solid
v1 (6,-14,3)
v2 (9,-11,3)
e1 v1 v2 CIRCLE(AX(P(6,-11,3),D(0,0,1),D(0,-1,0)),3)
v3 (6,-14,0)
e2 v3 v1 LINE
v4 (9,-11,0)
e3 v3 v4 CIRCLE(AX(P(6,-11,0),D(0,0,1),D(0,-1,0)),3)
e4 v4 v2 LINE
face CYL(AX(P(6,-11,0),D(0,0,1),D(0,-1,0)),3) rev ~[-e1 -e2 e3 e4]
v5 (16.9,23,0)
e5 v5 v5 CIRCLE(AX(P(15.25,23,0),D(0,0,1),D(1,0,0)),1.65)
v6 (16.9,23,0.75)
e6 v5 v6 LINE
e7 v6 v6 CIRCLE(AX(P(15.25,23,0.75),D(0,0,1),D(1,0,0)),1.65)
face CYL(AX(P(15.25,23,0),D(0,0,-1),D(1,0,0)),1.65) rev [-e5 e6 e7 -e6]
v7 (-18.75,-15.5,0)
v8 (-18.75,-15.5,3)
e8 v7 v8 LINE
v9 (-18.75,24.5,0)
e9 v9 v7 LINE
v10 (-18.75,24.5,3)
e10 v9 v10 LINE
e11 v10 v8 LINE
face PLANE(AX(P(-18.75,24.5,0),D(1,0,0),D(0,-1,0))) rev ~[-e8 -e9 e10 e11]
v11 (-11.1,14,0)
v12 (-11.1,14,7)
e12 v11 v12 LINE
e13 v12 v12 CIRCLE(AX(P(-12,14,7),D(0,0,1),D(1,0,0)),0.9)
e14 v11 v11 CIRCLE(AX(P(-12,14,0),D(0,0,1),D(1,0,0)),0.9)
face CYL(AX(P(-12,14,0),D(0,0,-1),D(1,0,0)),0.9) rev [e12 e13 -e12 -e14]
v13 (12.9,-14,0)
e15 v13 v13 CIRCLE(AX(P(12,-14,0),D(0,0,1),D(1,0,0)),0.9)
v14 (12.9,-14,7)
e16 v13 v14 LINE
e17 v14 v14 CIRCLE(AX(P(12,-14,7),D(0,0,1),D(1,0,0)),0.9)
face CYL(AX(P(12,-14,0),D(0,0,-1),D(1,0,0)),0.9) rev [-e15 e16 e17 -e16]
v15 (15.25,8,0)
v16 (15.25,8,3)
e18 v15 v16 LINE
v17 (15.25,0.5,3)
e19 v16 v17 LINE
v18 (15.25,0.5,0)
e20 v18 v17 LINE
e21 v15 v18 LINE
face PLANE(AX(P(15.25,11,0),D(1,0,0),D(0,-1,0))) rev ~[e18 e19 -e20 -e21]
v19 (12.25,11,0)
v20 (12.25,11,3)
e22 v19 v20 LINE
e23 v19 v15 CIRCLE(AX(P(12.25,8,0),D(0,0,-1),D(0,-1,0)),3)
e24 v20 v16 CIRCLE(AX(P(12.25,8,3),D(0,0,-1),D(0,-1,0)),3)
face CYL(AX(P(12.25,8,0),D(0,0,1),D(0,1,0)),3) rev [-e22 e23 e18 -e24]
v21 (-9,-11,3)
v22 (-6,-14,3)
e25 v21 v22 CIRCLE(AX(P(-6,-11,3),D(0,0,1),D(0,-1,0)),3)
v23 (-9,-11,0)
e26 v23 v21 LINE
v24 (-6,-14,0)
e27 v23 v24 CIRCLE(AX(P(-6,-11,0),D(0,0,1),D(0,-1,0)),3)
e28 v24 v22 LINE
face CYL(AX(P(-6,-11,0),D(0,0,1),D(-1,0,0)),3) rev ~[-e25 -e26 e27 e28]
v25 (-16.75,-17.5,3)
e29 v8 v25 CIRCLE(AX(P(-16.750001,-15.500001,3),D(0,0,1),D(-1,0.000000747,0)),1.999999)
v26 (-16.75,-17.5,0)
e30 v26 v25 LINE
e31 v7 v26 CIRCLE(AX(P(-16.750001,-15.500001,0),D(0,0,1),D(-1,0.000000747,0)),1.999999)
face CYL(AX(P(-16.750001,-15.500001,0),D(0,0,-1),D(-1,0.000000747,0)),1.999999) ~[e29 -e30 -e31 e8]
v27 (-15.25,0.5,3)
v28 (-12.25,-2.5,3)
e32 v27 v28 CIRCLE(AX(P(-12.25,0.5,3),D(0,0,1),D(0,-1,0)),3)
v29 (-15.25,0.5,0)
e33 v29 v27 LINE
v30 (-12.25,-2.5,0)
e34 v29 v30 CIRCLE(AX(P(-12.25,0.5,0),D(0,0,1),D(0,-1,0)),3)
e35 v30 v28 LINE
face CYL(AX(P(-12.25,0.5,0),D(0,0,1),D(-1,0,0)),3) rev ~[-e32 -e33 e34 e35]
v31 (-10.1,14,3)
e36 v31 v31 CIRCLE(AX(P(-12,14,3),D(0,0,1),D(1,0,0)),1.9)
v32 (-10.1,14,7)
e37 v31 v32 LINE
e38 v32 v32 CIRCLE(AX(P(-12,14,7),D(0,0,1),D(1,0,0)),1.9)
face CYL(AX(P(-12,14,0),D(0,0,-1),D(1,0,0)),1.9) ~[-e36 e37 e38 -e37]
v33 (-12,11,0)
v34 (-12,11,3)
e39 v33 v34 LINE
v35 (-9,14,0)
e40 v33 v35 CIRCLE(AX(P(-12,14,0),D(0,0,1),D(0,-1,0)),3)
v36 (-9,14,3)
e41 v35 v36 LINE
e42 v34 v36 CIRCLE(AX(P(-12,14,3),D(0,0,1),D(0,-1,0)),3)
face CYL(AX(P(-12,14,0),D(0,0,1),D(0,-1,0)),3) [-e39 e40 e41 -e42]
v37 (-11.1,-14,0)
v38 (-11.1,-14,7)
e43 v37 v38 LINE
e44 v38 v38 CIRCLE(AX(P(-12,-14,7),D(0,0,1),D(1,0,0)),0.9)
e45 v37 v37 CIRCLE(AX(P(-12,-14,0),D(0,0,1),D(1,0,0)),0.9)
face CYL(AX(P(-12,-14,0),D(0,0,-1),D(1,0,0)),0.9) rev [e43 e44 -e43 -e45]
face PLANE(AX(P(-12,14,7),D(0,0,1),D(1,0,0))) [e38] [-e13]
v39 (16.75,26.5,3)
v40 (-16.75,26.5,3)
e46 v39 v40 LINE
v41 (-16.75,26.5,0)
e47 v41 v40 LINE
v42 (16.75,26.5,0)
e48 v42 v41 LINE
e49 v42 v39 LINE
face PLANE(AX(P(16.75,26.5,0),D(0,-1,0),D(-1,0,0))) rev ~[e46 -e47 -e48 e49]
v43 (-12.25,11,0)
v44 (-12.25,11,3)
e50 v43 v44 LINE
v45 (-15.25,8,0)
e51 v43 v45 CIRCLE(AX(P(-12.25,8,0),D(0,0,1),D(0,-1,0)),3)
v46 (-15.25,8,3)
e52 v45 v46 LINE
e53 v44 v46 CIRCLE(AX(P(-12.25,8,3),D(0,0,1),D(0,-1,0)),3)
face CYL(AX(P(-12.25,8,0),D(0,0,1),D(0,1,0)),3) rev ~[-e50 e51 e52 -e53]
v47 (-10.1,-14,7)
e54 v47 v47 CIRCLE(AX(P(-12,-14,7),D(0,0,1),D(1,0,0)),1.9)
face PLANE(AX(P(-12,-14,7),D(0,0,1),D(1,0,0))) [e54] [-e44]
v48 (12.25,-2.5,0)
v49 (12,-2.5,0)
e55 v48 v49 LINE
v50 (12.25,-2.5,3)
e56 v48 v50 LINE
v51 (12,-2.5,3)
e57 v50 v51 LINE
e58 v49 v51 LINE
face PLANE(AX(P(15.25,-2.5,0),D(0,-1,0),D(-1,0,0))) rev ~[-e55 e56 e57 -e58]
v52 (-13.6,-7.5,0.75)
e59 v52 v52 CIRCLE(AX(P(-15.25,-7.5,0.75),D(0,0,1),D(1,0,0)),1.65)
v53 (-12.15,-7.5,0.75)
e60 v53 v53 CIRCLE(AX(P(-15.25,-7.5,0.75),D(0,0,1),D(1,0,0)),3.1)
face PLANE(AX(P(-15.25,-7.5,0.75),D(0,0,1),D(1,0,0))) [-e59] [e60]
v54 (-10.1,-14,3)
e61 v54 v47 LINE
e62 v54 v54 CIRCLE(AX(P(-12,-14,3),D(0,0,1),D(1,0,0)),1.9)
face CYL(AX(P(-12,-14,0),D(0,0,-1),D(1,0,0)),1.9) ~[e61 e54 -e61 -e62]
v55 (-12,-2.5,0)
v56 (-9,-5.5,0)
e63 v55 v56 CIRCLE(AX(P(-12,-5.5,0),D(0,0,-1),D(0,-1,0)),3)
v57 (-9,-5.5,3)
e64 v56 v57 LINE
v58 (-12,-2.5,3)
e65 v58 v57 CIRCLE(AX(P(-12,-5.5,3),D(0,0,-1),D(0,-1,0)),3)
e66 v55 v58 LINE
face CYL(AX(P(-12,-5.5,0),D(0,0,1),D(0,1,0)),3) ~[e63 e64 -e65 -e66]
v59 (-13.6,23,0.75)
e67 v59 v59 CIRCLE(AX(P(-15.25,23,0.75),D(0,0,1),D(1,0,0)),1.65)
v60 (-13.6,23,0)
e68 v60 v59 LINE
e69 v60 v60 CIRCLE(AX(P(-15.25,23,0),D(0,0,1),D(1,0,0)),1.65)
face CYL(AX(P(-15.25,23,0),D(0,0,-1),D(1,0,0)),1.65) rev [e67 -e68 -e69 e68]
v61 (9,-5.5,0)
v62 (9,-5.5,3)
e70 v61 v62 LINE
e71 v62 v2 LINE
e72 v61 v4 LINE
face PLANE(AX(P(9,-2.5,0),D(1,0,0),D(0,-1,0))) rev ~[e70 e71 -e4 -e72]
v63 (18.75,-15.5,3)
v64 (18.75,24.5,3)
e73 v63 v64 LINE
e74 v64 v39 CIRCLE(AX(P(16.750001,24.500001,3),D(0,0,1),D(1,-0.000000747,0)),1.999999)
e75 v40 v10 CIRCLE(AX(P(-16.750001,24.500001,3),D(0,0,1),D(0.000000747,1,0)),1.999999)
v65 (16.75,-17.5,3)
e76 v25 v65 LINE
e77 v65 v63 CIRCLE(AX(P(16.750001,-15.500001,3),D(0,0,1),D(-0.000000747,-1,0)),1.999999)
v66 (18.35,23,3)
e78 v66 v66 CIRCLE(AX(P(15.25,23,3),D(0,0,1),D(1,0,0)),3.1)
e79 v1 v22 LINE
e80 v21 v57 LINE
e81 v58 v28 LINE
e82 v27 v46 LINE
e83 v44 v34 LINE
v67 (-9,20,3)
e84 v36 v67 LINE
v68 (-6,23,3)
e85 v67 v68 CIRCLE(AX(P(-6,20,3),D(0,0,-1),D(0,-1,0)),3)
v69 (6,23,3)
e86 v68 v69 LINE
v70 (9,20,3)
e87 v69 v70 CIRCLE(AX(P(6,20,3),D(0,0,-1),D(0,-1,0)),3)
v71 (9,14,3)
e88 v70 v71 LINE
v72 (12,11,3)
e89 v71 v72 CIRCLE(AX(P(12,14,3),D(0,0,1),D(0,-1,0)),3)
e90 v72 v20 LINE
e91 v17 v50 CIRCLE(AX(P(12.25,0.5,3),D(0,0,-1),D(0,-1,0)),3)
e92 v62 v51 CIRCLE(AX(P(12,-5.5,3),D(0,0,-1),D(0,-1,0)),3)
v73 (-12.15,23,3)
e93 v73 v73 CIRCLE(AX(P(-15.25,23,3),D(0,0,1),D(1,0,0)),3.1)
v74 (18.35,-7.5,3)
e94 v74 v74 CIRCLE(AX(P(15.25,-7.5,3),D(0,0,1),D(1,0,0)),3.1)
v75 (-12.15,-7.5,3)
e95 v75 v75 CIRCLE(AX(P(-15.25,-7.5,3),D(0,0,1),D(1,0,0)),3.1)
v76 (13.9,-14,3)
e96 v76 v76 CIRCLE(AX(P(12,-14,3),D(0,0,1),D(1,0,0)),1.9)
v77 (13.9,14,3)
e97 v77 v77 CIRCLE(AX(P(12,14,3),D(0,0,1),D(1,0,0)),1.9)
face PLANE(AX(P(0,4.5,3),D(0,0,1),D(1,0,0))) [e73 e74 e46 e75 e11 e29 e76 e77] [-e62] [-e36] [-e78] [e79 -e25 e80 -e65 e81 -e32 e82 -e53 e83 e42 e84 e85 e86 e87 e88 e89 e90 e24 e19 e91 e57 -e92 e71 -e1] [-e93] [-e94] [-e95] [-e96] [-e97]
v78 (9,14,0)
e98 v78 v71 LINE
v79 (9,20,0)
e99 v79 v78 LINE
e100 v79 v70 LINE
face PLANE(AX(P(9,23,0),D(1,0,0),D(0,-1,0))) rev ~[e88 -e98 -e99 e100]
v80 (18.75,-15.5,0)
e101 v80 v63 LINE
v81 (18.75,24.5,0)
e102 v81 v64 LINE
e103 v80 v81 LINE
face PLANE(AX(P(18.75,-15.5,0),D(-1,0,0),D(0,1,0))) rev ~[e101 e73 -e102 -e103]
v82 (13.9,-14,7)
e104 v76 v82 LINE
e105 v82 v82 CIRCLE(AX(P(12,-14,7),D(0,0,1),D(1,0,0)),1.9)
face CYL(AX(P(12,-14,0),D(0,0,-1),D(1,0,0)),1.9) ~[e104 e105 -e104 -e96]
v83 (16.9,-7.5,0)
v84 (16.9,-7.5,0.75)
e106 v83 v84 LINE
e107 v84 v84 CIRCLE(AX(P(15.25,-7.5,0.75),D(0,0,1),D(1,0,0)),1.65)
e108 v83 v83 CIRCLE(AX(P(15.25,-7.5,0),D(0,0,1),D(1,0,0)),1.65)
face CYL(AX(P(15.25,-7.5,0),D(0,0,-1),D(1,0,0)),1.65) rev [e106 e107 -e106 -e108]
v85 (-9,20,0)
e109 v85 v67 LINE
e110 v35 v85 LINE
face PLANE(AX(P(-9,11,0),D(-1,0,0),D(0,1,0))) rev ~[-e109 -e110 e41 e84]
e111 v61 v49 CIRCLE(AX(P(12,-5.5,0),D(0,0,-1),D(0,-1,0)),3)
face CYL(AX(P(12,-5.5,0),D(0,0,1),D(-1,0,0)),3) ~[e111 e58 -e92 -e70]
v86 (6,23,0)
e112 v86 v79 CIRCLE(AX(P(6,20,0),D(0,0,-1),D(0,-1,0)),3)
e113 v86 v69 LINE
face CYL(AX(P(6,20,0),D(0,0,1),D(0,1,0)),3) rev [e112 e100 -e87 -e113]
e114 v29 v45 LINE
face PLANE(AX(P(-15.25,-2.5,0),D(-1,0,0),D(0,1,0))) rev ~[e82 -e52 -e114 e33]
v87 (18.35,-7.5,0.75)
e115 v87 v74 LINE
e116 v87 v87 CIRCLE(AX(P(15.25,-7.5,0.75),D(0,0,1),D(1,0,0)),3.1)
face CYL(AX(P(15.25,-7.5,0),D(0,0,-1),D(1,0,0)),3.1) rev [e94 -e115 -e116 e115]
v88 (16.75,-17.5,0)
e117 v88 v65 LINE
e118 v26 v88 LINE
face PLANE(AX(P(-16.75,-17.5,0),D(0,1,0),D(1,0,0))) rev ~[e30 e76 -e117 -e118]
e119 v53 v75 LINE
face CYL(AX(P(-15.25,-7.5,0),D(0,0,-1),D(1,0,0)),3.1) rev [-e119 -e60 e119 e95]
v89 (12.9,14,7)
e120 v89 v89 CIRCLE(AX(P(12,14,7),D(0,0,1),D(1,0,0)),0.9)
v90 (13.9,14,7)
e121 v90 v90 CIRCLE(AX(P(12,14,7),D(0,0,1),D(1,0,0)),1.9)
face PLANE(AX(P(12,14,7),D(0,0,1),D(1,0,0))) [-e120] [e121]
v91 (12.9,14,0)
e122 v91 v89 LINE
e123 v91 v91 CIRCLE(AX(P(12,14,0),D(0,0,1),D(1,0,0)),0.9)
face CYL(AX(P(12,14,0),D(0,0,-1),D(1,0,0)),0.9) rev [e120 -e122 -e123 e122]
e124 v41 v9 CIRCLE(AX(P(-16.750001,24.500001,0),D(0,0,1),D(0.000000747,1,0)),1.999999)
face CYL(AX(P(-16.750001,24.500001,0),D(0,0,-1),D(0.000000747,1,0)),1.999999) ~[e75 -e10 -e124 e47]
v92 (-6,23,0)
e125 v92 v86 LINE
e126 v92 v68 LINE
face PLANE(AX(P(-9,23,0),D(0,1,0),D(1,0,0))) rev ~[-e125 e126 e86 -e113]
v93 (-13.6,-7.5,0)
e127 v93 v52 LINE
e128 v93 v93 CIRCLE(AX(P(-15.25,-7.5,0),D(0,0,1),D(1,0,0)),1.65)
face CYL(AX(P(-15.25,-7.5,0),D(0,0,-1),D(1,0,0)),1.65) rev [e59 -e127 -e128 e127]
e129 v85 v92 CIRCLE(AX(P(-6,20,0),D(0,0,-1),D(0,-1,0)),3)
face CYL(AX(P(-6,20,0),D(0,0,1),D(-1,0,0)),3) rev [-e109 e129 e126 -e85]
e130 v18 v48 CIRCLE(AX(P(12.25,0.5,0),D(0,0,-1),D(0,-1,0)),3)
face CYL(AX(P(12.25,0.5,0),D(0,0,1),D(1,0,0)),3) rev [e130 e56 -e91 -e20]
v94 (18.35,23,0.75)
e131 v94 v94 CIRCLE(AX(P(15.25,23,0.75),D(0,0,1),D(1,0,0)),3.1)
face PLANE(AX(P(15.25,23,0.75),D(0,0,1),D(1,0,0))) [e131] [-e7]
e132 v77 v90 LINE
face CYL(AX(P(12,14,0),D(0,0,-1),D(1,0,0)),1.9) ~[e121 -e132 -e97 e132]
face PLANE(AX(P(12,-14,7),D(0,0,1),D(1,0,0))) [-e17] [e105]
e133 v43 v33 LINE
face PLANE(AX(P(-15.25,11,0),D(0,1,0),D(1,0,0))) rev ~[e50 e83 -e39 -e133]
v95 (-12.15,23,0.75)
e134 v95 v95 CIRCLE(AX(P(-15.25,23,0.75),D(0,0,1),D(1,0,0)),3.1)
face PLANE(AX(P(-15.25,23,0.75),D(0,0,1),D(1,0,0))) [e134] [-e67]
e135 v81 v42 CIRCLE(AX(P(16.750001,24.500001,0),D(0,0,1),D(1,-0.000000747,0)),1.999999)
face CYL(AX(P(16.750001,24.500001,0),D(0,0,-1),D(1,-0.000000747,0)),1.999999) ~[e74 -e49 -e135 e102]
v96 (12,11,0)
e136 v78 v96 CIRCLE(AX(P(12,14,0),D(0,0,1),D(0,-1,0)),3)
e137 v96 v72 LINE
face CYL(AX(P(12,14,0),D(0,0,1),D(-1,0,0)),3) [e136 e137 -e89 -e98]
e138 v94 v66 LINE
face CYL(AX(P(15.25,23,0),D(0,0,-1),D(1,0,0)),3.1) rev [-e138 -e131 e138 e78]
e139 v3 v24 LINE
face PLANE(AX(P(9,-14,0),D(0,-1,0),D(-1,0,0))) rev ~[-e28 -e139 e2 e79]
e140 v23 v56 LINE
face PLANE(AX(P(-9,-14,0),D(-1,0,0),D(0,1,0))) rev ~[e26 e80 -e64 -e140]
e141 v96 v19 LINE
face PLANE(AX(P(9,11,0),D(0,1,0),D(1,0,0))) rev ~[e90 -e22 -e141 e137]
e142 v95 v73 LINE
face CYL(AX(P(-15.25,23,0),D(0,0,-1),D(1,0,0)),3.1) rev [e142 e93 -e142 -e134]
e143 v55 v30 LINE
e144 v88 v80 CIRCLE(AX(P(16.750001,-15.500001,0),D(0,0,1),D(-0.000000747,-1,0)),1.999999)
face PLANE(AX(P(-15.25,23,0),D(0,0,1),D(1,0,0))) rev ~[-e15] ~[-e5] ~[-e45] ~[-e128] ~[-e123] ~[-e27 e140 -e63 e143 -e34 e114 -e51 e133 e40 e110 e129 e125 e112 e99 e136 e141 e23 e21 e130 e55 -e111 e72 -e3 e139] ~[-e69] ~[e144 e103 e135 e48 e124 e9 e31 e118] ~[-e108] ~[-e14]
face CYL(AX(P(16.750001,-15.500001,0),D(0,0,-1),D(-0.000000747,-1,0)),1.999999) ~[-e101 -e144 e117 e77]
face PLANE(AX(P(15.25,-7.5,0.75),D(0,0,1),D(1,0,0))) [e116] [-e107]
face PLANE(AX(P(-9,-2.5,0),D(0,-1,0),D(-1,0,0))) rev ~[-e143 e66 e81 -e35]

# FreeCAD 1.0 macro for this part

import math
import FreeCAD as App
import Part
import Sketcher


def edges_at(feature, points):
    """Names of the edges that pass closest to the given points."""
    edges = feature.Shape.Edges
    near = lambda p: min(range(len(edges)), key=lambda i: edges[i].distToShape(Part.Vertex(*p))[0])
    return sorted({f"Edge{near(p) + 1}" for p in points})


def add_polygon(sketch, points):
    """Adds a closed chain of lines whose ends are joined by coincident constraints."""
    first, n = sketch.GeometryCount, len(points)
    for a, b in zip(points, points[1:] + points[:1]):
        sketch.addGeometry(Part.LineSegment(App.Vector(*a, 0), App.Vector(*b, 0)), False)
    for i in range(n):
        sketch.addConstraint(Sketcher.Constraint("Coincident", first + i, 2, first + (i + 1) % n, 1))

doc = App.newDocument("Part")
body = doc.addObject("PartDesign::Body", "Body")

sketch1 = body.newObject("Sketcher::SketchObject", "Sketch")
sketch1.AttachmentSupport = (doc.getObject("XY_Plane"), [""])
sketch1.MapMode = "FlatFace"
sketch1.addGeometry(Part.ArcOfCircle(Part.Circle(App.Vector(-16.8, 24.5, 0), App.Vector(0, 0, 1), 2), math.radians(90), math.radians(180)), False)
sketch1.addGeometry(Part.LineSegment(App.Vector(-18.8, 24.5, 0), App.Vector(-18.8, -15.5, 0)), False)
sketch1.addGeometry(Part.ArcOfCircle(Part.Circle(App.Vector(-16.8, -15.5, 0), App.Vector(0, 0, 1), 2), math.radians(180), math.radians(270)), False)
sketch1.addGeometry(Part.LineSegment(App.Vector(-16.8, -17.5, 0), App.Vector(16.8, -17.5, 0)), False)
sketch1.addGeometry(Part.ArcOfCircle(Part.Circle(App.Vector(16.8, -15.5, 0), App.Vector(0, 0, 1), 2), math.radians(-90), math.radians(0)), False)
sketch1.addGeometry(Part.LineSegment(App.Vector(18.8, -15.5, 0), App.Vector(18.8, 24.5, 0)), False)
sketch1.addGeometry(Part.ArcOfCircle(Part.Circle(App.Vector(16.8, 24.5, 0), App.Vector(0, 0, 1), 2), math.radians(0), math.radians(90)), False)
sketch1.addGeometry(Part.LineSegment(App.Vector(16.8, 26.5, 0), App.Vector(-16.8, 26.5, 0)), False)
sketch1.addGeometry(Part.Circle(App.Vector(-12, -14, 0), App.Vector(0, 0, 1), 1.9), False)
sketch1.addGeometry(Part.Circle(App.Vector(-15.2, -7.5, 0), App.Vector(0, 0, 1), 3.1), False)
sketch1.addGeometry(Part.Circle(App.Vector(12, -14, 0), App.Vector(0, 0, 1), 1.9), False)
sketch1.addGeometry(Part.Circle(App.Vector(15.2, -7.5, 0), App.Vector(0, 0, 1), 3.1), False)
add_polygon(sketch1, [(-15.2, 11), (-9, 11), (-9, 23), (9, 23), (9, 11), (15.2, 11), (15.2, -2.5), (9, -2.5), (9, -14), (-9, -14), (-9, -2.5), (-15.2, -2.5)])
sketch1.addGeometry(Part.Circle(App.Vector(-12, 14, 0), App.Vector(0, 0, 1), 1.9), False)
sketch1.addGeometry(Part.Circle(App.Vector(-15.2, 23, 0), App.Vector(0, 0, 1), 3.1), False)
sketch1.addGeometry(Part.Circle(App.Vector(12, 14, 0), App.Vector(0, 0, 1), 1.9), False)
sketch1.addGeometry(Part.Circle(App.Vector(15.2, 23, 0), App.Vector(0, 0, 1), 3.1), False)
sketch1.addConstraint([
    Sketcher.Constraint("Tangent", 0, 2, 1, 1),
    Sketcher.Constraint("Tangent", 1, 2, 2, 1),
    Sketcher.Constraint("Tangent", 2, 2, 3, 1),
    Sketcher.Constraint("Tangent", 3, 2, 4, 1),
    Sketcher.Constraint("Tangent", 4, 2, 5, 1),
    Sketcher.Constraint("Tangent", 5, 2, 6, 1),
    Sketcher.Constraint("Tangent", 6, 2, 7, 1),
    Sketcher.Constraint("Tangent", 7, 2, 0, 1),
    Sketcher.Constraint("Vertical", 1),
    Sketcher.Constraint("Horizontal", 3),
    Sketcher.Constraint("Vertical", 5),
    Sketcher.Constraint("Horizontal", 7),
    Sketcher.Constraint("Horizontal", 12),
    Sketcher.Constraint("Vertical", 13),
    Sketcher.Constraint("Horizontal", 14),
    Sketcher.Constraint("Vertical", 15),
    Sketcher.Constraint("Horizontal", 16),
    Sketcher.Constraint("Vertical", 17),
    Sketcher.Constraint("Horizontal", 18),
    Sketcher.Constraint("Vertical", 19),
    Sketcher.Constraint("Horizontal", 20),
    Sketcher.Constraint("Vertical", 21),
    Sketcher.Constraint("Horizontal", 22),
    Sketcher.Constraint("Vertical", 23),
    Sketcher.Constraint("Equal", 0, 2),
    Sketcher.Constraint("Equal", 2, 4),
    Sketcher.Constraint("Equal", 4, 6),
    Sketcher.Constraint("Equal", 8, 10),
    Sketcher.Constraint("Equal", 9, 11),
    Sketcher.Constraint("Equal", 10, 24),
    Sketcher.Constraint("Equal", 11, 25),
    Sketcher.Constraint("Equal", 24, 26),
    Sketcher.Constraint("Equal", 25, 27),
    Sketcher.Constraint("Symmetric", 10, 3, 24, 3, -1, 1),
    Sketcher.Constraint("Symmetric", 8, 3, 26, 3, -1, 1),
    Sketcher.Constraint("Symmetric", 8, 3, 10, 3, -2),
    Sketcher.Constraint("Symmetric", 9, 3, 11, 3, -2),
    Sketcher.Constraint("Symmetric", 25, 3, 27, 3, -2),
    Sketcher.Constraint("Symmetric", 12, 2, 15, 2, -2),
    Sketcher.Constraint("Symmetric", 18, 2, 21, 2, -2),
    Sketcher.Constraint("Horizontal", 27, 3, 13, 2),
    Sketcher.Constraint("Horizontal", 10, 3, 19, 2),
    Sketcher.Constraint("Vertical", 9, 3, 25, 3),
    Sketcher.Constraint("Vertical", 27, 3, 16, 2),
    Sketcher.Constraint("Vertical", 15, 2, 18, 2),
    Sketcher.Constraint("Vertical", 25, 3, 22, 2),
    Sketcher.Constraint("Radius", 0, 1.999999),
    Sketcher.Constraint("Diameter", 8, 3.8),
    Sketcher.Constraint("Diameter", 9, 6.2),
    Sketcher.Constraint("DistanceX", 14, 1, 14, 2, 18.0),
    Sketcher.Constraint("DistanceY", 1, 2, 1, 1, 40.0),
    Sketcher.Constraint("DistanceY", 13, 1, 13, 2, 12.0),
    Sketcher.Constraint("DistanceX", 3, 1, 3, 2, 33.5),
    Sketcher.Constraint("DistanceY", 17, 2, 17, 1, 13.5),
    Sketcher.Constraint("DistanceY", 19, 2, 19, 1, 11.5),
    Sketcher.Constraint("DistanceX", 8, 3, -1, 1, 12.0),
    Sketcher.Constraint("DistanceY", 8, 3, -1, 1, 14.0),
    Sketcher.Constraint("DistanceY", 2, 3, 9, 3, 8.000001),
    Sketcher.Constraint("DistanceX", 9, 3, 4, 3, 32.000001),
    Sketcher.Constraint("DistanceY", 11, 3, 17, 2, 5.0),
    Sketcher.Constraint("DistanceX", 12, 1, 12, 2, 6.25),
])
pad1 = body.newObject("PartDesign::Pad", "Pad")
pad1.Profile = sketch1
pad1.Length = 3

sketch2 = body.newObject("Sketcher::SketchObject", "Sketch001")
sketch2.AttachmentSupport = (doc.getObject("XY_Plane"), [""])
sketch2.MapMode = "FlatFace"
sketch2.addGeometry([
    Part.Circle(App.Vector(-15.2, 23, 0), App.Vector(0, 0, 1), 3.1),
    Part.Circle(App.Vector(-15.2, 23, 0), App.Vector(0, 0, 1), 1.6),
    Part.Circle(App.Vector(15.2, 23, 0), App.Vector(0, 0, 1), 3.1),
    Part.Circle(App.Vector(15.2, 23, 0), App.Vector(0, 0, 1), 1.6),
    Part.Circle(App.Vector(15.2, -7.5, 0), App.Vector(0, 0, 1), 3.1),
    Part.Circle(App.Vector(15.2, -7.5, 0), App.Vector(0, 0, 1), 1.6),
    Part.Circle(App.Vector(-15.2, -7.5, 0), App.Vector(0, 0, 1), 3.1),
    Part.Circle(App.Vector(-15.2, -7.5, 0), App.Vector(0, 0, 1), 1.6),
], False)
sketch2.addConstraint([
    Sketcher.Constraint("Coincident", 1, 3, 0, 3),
    Sketcher.Constraint("Coincident", 3, 3, 2, 3),
    Sketcher.Constraint("Coincident", 5, 3, 4, 3),
    Sketcher.Constraint("Coincident", 7, 3, 6, 3),
    Sketcher.Constraint("Equal", 0, 2),
    Sketcher.Constraint("Equal", 1, 3),
    Sketcher.Constraint("Equal", 2, 4),
    Sketcher.Constraint("Equal", 3, 5),
    Sketcher.Constraint("Equal", 4, 6),
    Sketcher.Constraint("Equal", 5, 7),
    Sketcher.Constraint("Symmetric", 0, 3, 2, 3, -2),
    Sketcher.Constraint("Symmetric", 4, 3, 6, 3, -2),
    Sketcher.Constraint("Vertical", 3, 3, 4, 3),
    Sketcher.Constraint("Diameter", 0, 6.2),
    Sketcher.Constraint("Diameter", 1, 3.3),
    Sketcher.Constraint("DistanceY", -1, 1, 0, 3, 23.0),
    Sketcher.Constraint("DistanceY", 4, 3, -1, 1, 7.5),
    Sketcher.Constraint("DistanceX", 0, 3, 2, 3, 30.5),
])
pad2 = body.newObject("PartDesign::Pad", "Pad001")
pad2.Profile = sketch2
pad2.Length = 0.75

sketch3 = body.newObject("Sketcher::SketchObject", "Sketch002")
sketch3.AttachmentSupport = (doc.getObject("XY_Plane"), [""])
sketch3.MapMode = "FlatFace"
sketch3.addGeometry([
    Part.Circle(App.Vector(-12, 14, 0), App.Vector(0, 0, 1), 1.9),
    Part.Circle(App.Vector(-12, 14, 0), App.Vector(0, 0, 1), 0.9),
    Part.Circle(App.Vector(12, 14, 0), App.Vector(0, 0, 1), 1.9),
    Part.Circle(App.Vector(12, 14, 0), App.Vector(0, 0, 1), 0.9),
    Part.Circle(App.Vector(12, -14, 0), App.Vector(0, 0, 1), 1.9),
    Part.Circle(App.Vector(12, -14, 0), App.Vector(0, 0, 1), 0.9),
    Part.Circle(App.Vector(-12, -14, 0), App.Vector(0, 0, 1), 1.9),
    Part.Circle(App.Vector(-12, -14, 0), App.Vector(0, 0, 1), 0.9),
], False)
sketch3.addConstraint([
    Sketcher.Constraint("Coincident", 1, 3, 0, 3),
    Sketcher.Constraint("Coincident", 3, 3, 2, 3),
    Sketcher.Constraint("Coincident", 5, 3, 4, 3),
    Sketcher.Constraint("Coincident", 7, 3, 6, 3),
    Sketcher.Constraint("Equal", 0, 2),
    Sketcher.Constraint("Equal", 1, 3),
    Sketcher.Constraint("Equal", 2, 4),
    Sketcher.Constraint("Equal", 3, 5),
    Sketcher.Constraint("Equal", 4, 6),
    Sketcher.Constraint("Equal", 5, 7),
    Sketcher.Constraint("Symmetric", 0, 3, 4, 3, -1, 1),
    Sketcher.Constraint("Symmetric", 2, 3, 6, 3, -1, 1),
    Sketcher.Constraint("Symmetric", 0, 3, 2, 3, -2),
    Sketcher.Constraint("Diameter", 0, 3.8),
    Sketcher.Constraint("Diameter", 1, 1.8),
    Sketcher.Constraint("DistanceX", 0, 3, -1, 1, 12.0),
    Sketcher.Constraint("DistanceY", -1, 1, 0, 3, 14.0),
])
pad3 = body.newObject("PartDesign::Pad", "Pad002")
pad3.Profile = sketch3
pad3.Length = 7
doc.recompute()

fillet = body.newObject("PartDesign::Fillet", "Fillet")
fillet.Base = (pad3, edges_at(pad3, [
    (-15.25, 11, 1.5),
    (-9, 23, 1.5),
    (-9, 11, 1.5),
    (9, 23, 1.5),
    (9, 11, 1.5),
    (15.25, 11, 1.5),
    (15.25, -2.5, 1.5),
    (9, -2.5, 1.5),
    (9, -14, 1.5),
    (-9, -2.5, 1.5),
    (-9, -14, 1.5),
    (-15.25, -2.5, 1.5),
]))
fillet.Radius = 3

doc.recompute()
